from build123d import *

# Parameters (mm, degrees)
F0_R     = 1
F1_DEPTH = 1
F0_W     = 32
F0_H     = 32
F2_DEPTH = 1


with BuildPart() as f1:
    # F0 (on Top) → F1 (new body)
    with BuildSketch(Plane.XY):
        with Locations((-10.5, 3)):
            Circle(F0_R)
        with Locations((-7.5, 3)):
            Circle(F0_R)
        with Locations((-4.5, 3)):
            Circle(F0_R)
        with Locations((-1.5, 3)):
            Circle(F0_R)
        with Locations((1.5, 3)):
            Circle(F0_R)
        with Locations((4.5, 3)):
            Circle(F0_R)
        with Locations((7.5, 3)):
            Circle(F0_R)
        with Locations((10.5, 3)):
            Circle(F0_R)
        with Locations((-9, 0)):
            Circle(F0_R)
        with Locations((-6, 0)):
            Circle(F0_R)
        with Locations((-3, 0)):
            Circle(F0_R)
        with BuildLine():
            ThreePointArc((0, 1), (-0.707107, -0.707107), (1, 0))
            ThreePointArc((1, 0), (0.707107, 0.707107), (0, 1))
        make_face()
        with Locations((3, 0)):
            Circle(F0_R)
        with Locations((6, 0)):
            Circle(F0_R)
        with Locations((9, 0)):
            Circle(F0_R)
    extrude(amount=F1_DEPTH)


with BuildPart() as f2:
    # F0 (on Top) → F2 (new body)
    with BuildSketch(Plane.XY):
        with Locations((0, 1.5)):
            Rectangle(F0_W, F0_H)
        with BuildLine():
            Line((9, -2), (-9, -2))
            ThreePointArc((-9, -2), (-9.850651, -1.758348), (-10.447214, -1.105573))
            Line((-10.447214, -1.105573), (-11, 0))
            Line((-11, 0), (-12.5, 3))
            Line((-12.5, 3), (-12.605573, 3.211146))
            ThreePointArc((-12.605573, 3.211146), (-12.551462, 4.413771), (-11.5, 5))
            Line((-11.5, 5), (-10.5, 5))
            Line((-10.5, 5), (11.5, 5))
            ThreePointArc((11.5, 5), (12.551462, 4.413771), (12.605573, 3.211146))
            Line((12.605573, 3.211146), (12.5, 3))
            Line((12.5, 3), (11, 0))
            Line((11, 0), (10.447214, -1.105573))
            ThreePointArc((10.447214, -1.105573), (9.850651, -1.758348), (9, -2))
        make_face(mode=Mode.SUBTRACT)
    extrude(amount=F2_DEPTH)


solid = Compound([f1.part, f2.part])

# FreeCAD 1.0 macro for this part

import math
import FreeCAD as App
import Part
import Sketcher

V = App.Vector
Q = App.Units.Quantity

doc = App.newDocument("Part")
body = doc.addObject("PartDesign::Body", "Body")
body.AllowCompound = True

sketch1 = body.newObject("Sketcher::SketchObject", "Sketch")
sketch1.AttachmentSupport = (doc.getObject("XY_Plane"), [""])
sketch1.MapMode = "FlatFace"
sketch1.addGeometry([
    Part.Circle(V(-10.5, 3, 0), V(0, 0, 1), 1),
    Part.Circle(V(-7.5, 3, 0), V(0, 0, 1), 1),
    Part.Circle(V(-4.5, 3, 0), V(0, 0, 1), 1),
    Part.Circle(V(-1.5, 3, 0), V(0, 0, 1), 1),
    Part.Circle(V(1.5, 3, 0), V(0, 0, 1), 1),
    Part.Circle(V(4.5, 3, 0), V(0, 0, 1), 1),
    Part.Circle(V(7.5, 3, 0), V(0, 0, 1), 1),
    Part.Circle(V(10.5, 3, 0), V(0, 0, 1), 1),
    Part.Circle(V(-9, 0, 0), V(0, 0, 1), 1),
    Part.Circle(V(-6, 0, 0), V(0, 0, 1), 1),
    Part.Circle(V(-3, 0, 0), V(0, 0, 1), 1),
    Part.ArcOfCircle(Part.Circle(V(0, 0, 0), V(0, 0, 1), 1), math.radians(89.999993), math.radians(360.000007)),
    Part.ArcOfCircle(Part.Circle(V(0.000001, 0.000001, 0), V(0, 0, 1), 0.999999), math.radians(-0.000043), math.radians(90.000043)),
    Part.Circle(V(3, 0, 0), V(0, 0, 1), 1),
    Part.Circle(V(6, 0, 0), V(0, 0, 1), 1),
    Part.Circle(V(9, 0, 0), V(0, 0, 1), 1),
], False)
sketch1.addConstraint([
    Sketcher.Constraint("Tangent", 11, 1, 12, 2),
    Sketcher.Constraint("Coincident", 12, 1, 11, 2),
    Sketcher.Constraint("Coincident", 11, 3, -1, 1),
    Sketcher.Constraint("Equal", 0, 1),
    Sketcher.Constraint("Equal", 1, 2),
    Sketcher.Constraint("Equal", 2, 3),
    Sketcher.Constraint("Equal", 3, 4),
    Sketcher.Constraint("Equal", 4, 5),
    Sketcher.Constraint("Equal", 5, 6),
    Sketcher.Constraint("Equal", 6, 7),
    Sketcher.Constraint("Equal", 7, 8),
    Sketcher.Constraint("Equal", 8, 9),
    Sketcher.Constraint("Equal", 9, 10),
    Sketcher.Constraint("Equal", 10, 11),
    Sketcher.Constraint("Equal", 12, 13),
    Sketcher.Constraint("Equal", 13, 14),
    Sketcher.Constraint("Equal", 14, 15),
    Sketcher.Constraint("Symmetric", 10, 3, 13, 3, -1, 1),
    Sketcher.Constraint("Symmetric", 9, 3, 14, 3, -1, 1),
    Sketcher.Constraint("Symmetric", 8, 3, 15, 3, -1, 1),
    Sketcher.Constraint("Symmetric", 3, 3, 4, 3, -2),
    Sketcher.Constraint("Symmetric", 2, 3, 5, 3, -2),
    Sketcher.Constraint("Symmetric", 1, 3, 6, 3, -2),
    Sketcher.Constraint("Symmetric", 0, 3, 7, 3, -2),
    Sketcher.Constraint("PointOnObject", 8, 3, -1),
    Sketcher.Constraint("PointOnObject", 9, 3, -1),
    Sketcher.Constraint("PointOnObject", 10, 3, -1),
    Sketcher.Constraint("PointOnObject", 11, 1, -2),
    Sketcher.Constraint("PointOnObject", 12, 1, -1),
    Sketcher.Constraint("Horizontal", 0, 3, 1, 3),
    Sketcher.Constraint("Horizontal", 1, 3, 2, 3),
    Sketcher.Constraint("Horizontal", 2, 3, 3, 3),
    Sketcher.Constraint("Diameter", 0, Q("2 mm")),
    Sketcher.Constraint("DistanceY", -1, 1, 0, 3, Q("3 mm")),
    Sketcher.Constraint("DistanceX", 8, 3, -1, 1, Q("9 mm")),
    Sketcher.Constraint("DistanceX", 9, 3, -1, 1, Q("6 mm")),
    Sketcher.Constraint("DistanceX", 10, 3, -1, 1, Q("3 mm")),
    Sketcher.Constraint("DistanceX", 0, 3, 1, 3, Q("3 mm")),
    Sketcher.Constraint("DistanceX", 1, 3, 2, 3, Q("3 mm")),
    Sketcher.Constraint("DistanceX", 2, 3, 3, 3, Q("3 mm")),
    Sketcher.Constraint("DistanceX", 3, 3, 4, 3, Q("3 mm")),
])
pad1 = body.newObject("PartDesign::Pad", "Pad")
pad1.Profile = sketch1
pad1.Length = 1
body2 = doc.addObject("PartDesign::Body", "Body001")

sketch2 = body2.newObject("Sketcher::SketchObject", "Sketch001")
sketch2.AttachmentSupport = (doc.getObject("XY_Plane001"), [""])
sketch2.MapMode = "FlatFace"
sketch2.addGeometry([
    Part.LineSegment(V(-16, 17.5, 0), V(-16, -14.5, 0)),
    Part.LineSegment(V(-16, -14.5, 0), V(16, -14.5, 0)),
    Part.LineSegment(V(16, -14.5, 0), V(16, 17.5, 0)),
    Part.LineSegment(V(16, 17.5, 0), V(-16, 17.5, 0)),
    Part.ArcOfCircle(Part.Circle(V(9, -0.381965, 0), V(0, 0, 1), 1.618035), math.radians(-90.000005), math.radians(-26.565072)),
    Part.LineSegment(V(9, -2, 0), V(-9, -2, 0)),
    Part.ArcOfCircle(Part.Circle(V(-9, -0.381965, 0), V(0, 0, 1), 1.618035), math.radians(-153.434928), math.radians(-89.999995)),
    Part.LineSegment(V(-10.447214, -1.105573, 0), V(-11, 0, 0)),
    Part.LineSegment(V(-11, 0, 0), V(-12.605573, 3.211146, 0)),
    Part.ArcOfCircle(Part.Circle(V(-11.499999, 3.763932, 0), V(0, 0, 1), 1.236068), math.radians(90.000034), math.radians(206.564997)),
    Part.LineSegment(V(-11.5, 5, 0), V(11.5, 5, 0)),
    Part.ArcOfCircle(Part.Circle(V(11.499999, 3.763932, 0), V(0, 0, 1), 1.236068), math.radians(-26.564997), math.radians(89.999966)),
    Part.LineSegment(V(12.605573, 3.211146, 0), V(11, 0, 0)),
    Part.LineSegment(V(11, 0, 0), V(10.447214, -1.105573, 0)),
], False)
sketch2.addConstraint([
    Sketcher.Constraint("Coincident", 0, 2, 1, 1),
    Sketcher.Constraint("Coincident", 1, 2, 2, 1),
    Sketcher.Constraint("Coincident", 2, 2, 3, 1),
    Sketcher.Constraint("Coincident", 3, 2, 0, 1),
    Sketcher.Constraint("Tangent", 4, 1, 5, 1),
    Sketcher.Constraint("Tangent", 5, 2, 6, 2),
    Sketcher.Constraint("Tangent", 6, 1, 7, 1),
    Sketcher.Constraint("Coincident", 7, 2, 8, 1),
    Sketcher.Constraint("Tangent", 8, 2, 9, 2),
    Sketcher.Constraint("Tangent", 9, 1, 10, 1),
    Sketcher.Constraint("Tangent", 10, 2, 11, 2),
    Sketcher.Constraint("Tangent", 11, 1, 12, 1),
    Sketcher.Constraint("Coincident", 12, 2, 13, 1),
    Sketcher.Constraint("Tangent", 13, 2, 4, 2),
    Sketcher.Constraint("Vertical", 0),
    Sketcher.Constraint("Horizontal", 1),
    Sketcher.Constraint("Vertical", 2),
    Sketcher.Constraint("Horizontal", 3),
    Sketcher.Constraint("Horizontal", 5),
    Sketcher.Constraint("Horizontal", 10),
    Sketcher.Constraint("Equal", 4, 6),
    Sketcher.Constraint("Equal", 9, 11),
    Sketcher.Constraint("Symmetric", 7, 2, 12, 2, -1, 1),
    Sketcher.Constraint("Symmetric", 8, 2, 11, 1, -2),
    Sketcher.Constraint("Parallel", 7, 8),
    Sketcher.Constraint("Parallel", 12, 13),
    Sketcher.Constraint("Equal", 3, 0),
    Sketcher.Constraint("DistanceX", 1, 1, 1, 2, Q("32 mm")),
    Sketcher.Constraint("DistanceX", 5, 2, 5, 1, Q("18 mm")),
    Sketcher.Constraint("DistanceX", 10, 1, 10, 2, Q("23 mm")),
    Sketcher.Constraint("DistanceX", 0, 2, -1, 1, Q("16 mm")),
    Sketcher.Constraint("DistanceY", 4, 1, -1, 1, Q("2 mm")),
    Sketcher.Constraint("DistanceX", 7, 2, -1, 1, Q("11 mm")),
    Sketcher.Constraint("DistanceY", -1, 1, 9, 1, Q("5 mm")),
    Sketcher.Constraint("DistanceY", 0, 2, -1, 1, Q("14.5 mm")),
    Sketcher.Constraint("Radius", 9, Q("1.236068 mm")),
])
pad2 = body2.newObject("PartDesign::Pad", "Pad001")
pad2.Profile = sketch2
pad2.Length = 1

doc.recompute()
